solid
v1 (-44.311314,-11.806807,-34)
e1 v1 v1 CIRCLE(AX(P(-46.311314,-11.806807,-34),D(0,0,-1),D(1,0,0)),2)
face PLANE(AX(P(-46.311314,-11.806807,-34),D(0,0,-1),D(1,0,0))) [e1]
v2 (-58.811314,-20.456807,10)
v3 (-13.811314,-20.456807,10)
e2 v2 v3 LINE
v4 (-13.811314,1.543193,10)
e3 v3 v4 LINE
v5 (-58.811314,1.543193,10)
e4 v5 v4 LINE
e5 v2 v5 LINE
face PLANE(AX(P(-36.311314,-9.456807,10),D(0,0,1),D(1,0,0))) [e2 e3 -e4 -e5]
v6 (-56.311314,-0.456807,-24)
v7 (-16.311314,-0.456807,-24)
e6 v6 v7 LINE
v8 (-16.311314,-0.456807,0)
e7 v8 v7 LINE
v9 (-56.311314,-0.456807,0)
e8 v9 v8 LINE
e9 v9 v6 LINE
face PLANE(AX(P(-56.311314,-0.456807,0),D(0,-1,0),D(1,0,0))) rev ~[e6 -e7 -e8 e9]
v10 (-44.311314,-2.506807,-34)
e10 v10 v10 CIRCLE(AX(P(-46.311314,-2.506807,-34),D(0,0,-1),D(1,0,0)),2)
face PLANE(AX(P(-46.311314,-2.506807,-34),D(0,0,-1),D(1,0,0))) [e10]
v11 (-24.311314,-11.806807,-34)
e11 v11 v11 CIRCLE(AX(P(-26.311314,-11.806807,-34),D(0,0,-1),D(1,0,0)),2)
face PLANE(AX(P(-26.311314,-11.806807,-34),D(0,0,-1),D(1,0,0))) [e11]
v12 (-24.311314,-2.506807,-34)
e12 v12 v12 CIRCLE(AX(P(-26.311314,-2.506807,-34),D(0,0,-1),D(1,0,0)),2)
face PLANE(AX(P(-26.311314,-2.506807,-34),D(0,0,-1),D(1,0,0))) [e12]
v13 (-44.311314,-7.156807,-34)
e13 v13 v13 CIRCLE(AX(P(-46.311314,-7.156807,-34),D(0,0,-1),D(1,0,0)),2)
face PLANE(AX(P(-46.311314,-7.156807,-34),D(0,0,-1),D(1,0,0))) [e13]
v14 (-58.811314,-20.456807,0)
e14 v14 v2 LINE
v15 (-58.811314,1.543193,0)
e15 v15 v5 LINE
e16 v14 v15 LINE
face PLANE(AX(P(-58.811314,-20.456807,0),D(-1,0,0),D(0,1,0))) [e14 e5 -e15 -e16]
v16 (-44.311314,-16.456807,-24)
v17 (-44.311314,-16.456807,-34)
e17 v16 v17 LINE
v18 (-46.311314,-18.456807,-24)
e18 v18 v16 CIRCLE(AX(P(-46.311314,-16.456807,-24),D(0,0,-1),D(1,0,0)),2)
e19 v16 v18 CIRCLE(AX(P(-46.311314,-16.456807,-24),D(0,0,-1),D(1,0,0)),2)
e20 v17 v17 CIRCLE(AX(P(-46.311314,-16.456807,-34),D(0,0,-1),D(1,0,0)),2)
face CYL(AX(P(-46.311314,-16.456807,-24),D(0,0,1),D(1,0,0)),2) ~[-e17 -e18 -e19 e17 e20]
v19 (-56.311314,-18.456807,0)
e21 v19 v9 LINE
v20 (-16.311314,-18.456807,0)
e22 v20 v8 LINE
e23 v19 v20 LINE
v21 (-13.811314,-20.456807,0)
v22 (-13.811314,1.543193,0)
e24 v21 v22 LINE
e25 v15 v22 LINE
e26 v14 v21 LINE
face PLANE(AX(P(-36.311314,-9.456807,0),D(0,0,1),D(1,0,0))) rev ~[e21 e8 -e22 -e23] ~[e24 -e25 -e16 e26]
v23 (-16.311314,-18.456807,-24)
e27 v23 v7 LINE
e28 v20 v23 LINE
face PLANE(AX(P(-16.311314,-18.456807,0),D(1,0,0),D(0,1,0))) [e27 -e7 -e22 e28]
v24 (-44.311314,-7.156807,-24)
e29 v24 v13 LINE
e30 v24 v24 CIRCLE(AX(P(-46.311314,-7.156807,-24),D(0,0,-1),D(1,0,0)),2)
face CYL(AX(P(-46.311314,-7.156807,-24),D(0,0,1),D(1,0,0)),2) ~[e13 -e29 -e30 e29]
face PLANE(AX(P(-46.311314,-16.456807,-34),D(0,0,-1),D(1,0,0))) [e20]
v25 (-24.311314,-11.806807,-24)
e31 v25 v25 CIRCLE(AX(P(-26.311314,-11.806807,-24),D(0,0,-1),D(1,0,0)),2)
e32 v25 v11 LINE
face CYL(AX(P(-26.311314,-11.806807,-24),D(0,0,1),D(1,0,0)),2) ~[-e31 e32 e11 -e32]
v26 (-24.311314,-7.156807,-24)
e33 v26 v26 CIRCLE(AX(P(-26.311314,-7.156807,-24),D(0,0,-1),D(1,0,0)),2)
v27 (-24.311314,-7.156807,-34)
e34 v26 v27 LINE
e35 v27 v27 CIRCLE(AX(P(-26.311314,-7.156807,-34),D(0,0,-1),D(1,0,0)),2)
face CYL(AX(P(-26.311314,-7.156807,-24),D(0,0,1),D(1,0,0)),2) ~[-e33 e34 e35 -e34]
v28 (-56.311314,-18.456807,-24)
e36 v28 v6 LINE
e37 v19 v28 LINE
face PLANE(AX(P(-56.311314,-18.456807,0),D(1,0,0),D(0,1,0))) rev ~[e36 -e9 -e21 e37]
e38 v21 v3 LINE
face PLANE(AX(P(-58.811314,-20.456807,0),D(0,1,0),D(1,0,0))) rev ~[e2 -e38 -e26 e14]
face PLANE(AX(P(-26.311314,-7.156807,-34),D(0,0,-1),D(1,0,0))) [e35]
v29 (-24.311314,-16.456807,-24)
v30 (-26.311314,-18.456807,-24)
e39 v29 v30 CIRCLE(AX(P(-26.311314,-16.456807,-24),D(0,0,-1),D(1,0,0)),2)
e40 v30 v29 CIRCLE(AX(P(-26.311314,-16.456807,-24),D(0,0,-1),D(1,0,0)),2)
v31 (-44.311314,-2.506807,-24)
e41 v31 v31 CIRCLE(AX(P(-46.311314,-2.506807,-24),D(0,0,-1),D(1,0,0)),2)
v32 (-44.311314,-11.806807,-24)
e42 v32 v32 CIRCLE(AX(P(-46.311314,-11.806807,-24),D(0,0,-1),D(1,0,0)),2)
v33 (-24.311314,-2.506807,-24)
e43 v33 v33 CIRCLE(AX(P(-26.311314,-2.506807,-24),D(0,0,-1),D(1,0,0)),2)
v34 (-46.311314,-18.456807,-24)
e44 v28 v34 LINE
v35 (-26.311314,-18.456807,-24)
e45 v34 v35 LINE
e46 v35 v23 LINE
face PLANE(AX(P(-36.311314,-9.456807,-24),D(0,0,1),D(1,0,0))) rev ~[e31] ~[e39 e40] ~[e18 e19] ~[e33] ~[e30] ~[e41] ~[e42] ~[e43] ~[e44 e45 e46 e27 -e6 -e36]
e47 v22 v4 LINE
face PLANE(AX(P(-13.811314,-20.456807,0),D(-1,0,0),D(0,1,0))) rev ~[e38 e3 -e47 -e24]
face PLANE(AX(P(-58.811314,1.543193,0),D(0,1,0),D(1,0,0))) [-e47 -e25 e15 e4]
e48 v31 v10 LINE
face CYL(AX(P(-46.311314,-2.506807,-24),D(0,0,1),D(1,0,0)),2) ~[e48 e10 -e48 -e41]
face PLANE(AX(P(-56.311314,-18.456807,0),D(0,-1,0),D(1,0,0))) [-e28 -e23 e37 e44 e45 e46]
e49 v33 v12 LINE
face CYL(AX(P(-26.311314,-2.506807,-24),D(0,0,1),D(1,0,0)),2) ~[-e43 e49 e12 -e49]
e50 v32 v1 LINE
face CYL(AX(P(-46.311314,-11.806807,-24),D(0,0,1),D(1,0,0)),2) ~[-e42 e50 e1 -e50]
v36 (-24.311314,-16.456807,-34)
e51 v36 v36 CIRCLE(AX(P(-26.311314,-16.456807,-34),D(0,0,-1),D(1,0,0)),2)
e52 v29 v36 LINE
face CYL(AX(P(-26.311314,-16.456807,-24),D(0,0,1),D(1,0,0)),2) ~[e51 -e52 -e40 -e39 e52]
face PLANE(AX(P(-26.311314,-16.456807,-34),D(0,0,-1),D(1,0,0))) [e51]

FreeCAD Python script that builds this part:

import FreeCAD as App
import Part
import Sketcher
from FreeCAD import Vector


def add_polygon(sketch, points):
    """Adds a closed chain of lines whose ends are joined by coincident constraints."""
    first, n = sketch.GeometryCount, len(points)
    for a, b in zip(points, points[1:] + points[:1]):
        sketch.addGeometry(Part.LineSegment(App.Vector(*a, 0), App.Vector(*b, 0)), False)
    for i in range(n):
        sketch.addConstraint(Sketcher.Constraint("Coincident", first + i, 2, first + (i + 1) % n, 1))

doc = App.newDocument("Part")
body = doc.addObject("PartDesign::Body", "Body")

sketch1 = doc.addObject("Sketcher::SketchObject", "Sketch")
body.addObject(sketch1)
sketch1.AttachmentSupport = (doc.XY_Plane, [""])
sketch1.MapMode = "FlatFace"
add_polygon(sketch1, [(-59, 2), (-59, -20), (-14, -20), (-14, 2)])
sketch1.addConstraint(Sketcher.Constraint("Vertical", 0))
sketch1.addConstraint(Sketcher.Constraint("Horizontal", 1))
sketch1.addConstraint(Sketcher.Constraint("Vertical", 2))
sketch1.addConstraint(Sketcher.Constraint("Horizontal", 3))
sketch1.addConstraint(Sketcher.Constraint("DistanceX", 1, 1, 1, 2, 45.0))
sketch1.addConstraint(Sketcher.Constraint("DistanceY", 0, 2, 0, 1, 22.0))
sketch1.addConstraint(Sketcher.Constraint("DistanceX", 0, 2, -1, 1, 58.811314))
sketch1.addConstraint(Sketcher.Constraint("DistanceY", 0, 2, -1, 1, 20.456807))
pad1 = doc.addObject("PartDesign::Pad", "Pad")
body.addObject(pad1)
pad1.Profile = sketch1
pad1.Length = 10

sketch2 = doc.addObject("Sketcher::SketchObject", "Sketch001")
body.addObject(sketch2)
sketch2.AttachmentSupport = (doc.XY_Plane, [""])
sketch2.MapMode = "FlatFace"
add_polygon(sketch2, [(-56, 0), (-56, -18), (-16, -18), (-16, 0)])
sketch2.addConstraint(Sketcher.Constraint("Vertical", 0))
sketch2.addConstraint(Sketcher.Constraint("Horizontal", 1))
sketch2.addConstraint(Sketcher.Constraint("Vertical", 2))
sketch2.addConstraint(Sketcher.Constraint("Horizontal", 3))
sketch2.addConstraint(Sketcher.Constraint("DistanceX", 1, 1, 1, 2, 40.0))
sketch2.addConstraint(Sketcher.Constraint("DistanceY", 0, 2, 0, 1, 18.0))
sketch2.addConstraint(Sketcher.Constraint("DistanceX", 0, 2, -1, 1, 56.311314))
sketch2.addConstraint(Sketcher.Constraint("DistanceY", 0, 2, -1, 1, 18.456807))
pad2 = doc.addObject("PartDesign::Pad", "Pad001")
body.addObject(pad2)
pad2.Profile = sketch2
pad2.Length = 24
pad2.Reversed = True

sketch3 = doc.addObject("Sketcher::SketchObject", "Sketch002")
body.addObject(sketch3)
sketch3.AttachmentSupport = (doc.XY_Plane, [""])
sketch3.MapMode = "FlatFace"
sketch3.AttachmentOffset = App.Placement(Vector(0, 0, -24), App.Rotation())
sketch3.addGeometry(Part.Circle(Vector(-46.3, -16.5, 0), Vector(0, 0, 1), 2), False)
sketch3.addGeometry(Part.Circle(Vector(-46.3, -11.8, 0), Vector(0, 0, 1), 2), False)
sketch3.addGeometry(Part.Circle(Vector(-46.3, -7.2, 0), Vector(0, 0, 1), 2), False)
sketch3.addGeometry(Part.Circle(Vector(-46.3, -2.5, 0), Vector(0, 0, 1), 2), False)
sketch3.addGeometry(Part.Circle(Vector(-26.3, -16.5, 0), Vector(0, 0, 1), 2), False)
sketch3.addGeometry(Part.Circle(Vector(-26.3, -11.8, 0), Vector(0, 0, 1), 2), False)
sketch3.addGeometry(Part.Circle(Vector(-26.3, -7.2, 0), Vector(0, 0, 1), 2), False)
sketch3.addGeometry(Part.Circle(Vector(-26.3, -2.5, 0), Vector(0, 0, 1), 2), False)
sketch3.addConstraint(Sketcher.Constraint("Equal", 0, 1))
sketch3.addConstraint(Sketcher.Constraint("Equal", 1, 2))
sketch3.addConstraint(Sketcher.Constraint("Equal", 2, 3))
sketch3.addConstraint(Sketcher.Constraint("Equal", 3, 4))
sketch3.addConstraint(Sketcher.Constraint("Equal", 4, 5))
sketch3.addConstraint(Sketcher.Constraint("Equal", 5, 6))
sketch3.addConstraint(Sketcher.Constraint("Equal", 6, 7))
sketch3.addConstraint(Sketcher.Constraint("Horizontal", 0, 3, 4, 3))
sketch3.addConstraint(Sketcher.Constraint("Horizontal", 1, 3, 5, 3))
sketch3.addConstraint(Sketcher.Constraint("Horizontal", 2, 3, 6, 3))
sketch3.addConstraint(Sketcher.Constraint("Horizontal", 3, 3, 7, 3))
sketch3.addConstraint(Sketcher.Constraint("Vertical", 0, 3, 1, 3))
sketch3.addConstraint(Sketcher.Constraint("Vertical", 1, 3, 2, 3))
sketch3.addConstraint(Sketcher.Constraint("Vertical", 2, 3, 3, 3))
sketch3.addConstraint(Sketcher.Constraint("Vertical", 4, 3, 5, 3))
sketch3.addConstraint(Sketcher.Constraint("Vertical", 5, 3, 6, 3))
sketch3.addConstraint(Sketcher.Constraint("Vertical", 6, 3, 7, 3))
sketch3.addConstraint(Sketcher.Constraint("Diameter", 0, 4.0))
sketch3.addConstraint(Sketcher.Constraint("DistanceX", 0, 3, 4, 3, 20.0))
sketch3.addConstraint(Sketcher.Constraint("DistanceY", 0, 3, 2, 3, 9.3))
sketch3.addConstraint(Sketcher.Constraint("DistanceY", 1, 3, 3, 3, 9.3))
sketch3.addConstraint(Sketcher.Constraint("DistanceY", 0, 3, 1, 3, 4.65))
sketch3.addConstraint(Sketcher.Constraint("DistanceX", 0, 3, -1, 1, 46.311314))
sketch3.addConstraint(Sketcher.Constraint("DistanceY", 0, 3, -1, 1, 16.456807))
pad3 = doc.addObject("PartDesign::Pad", "Pad002")
body.addObject(pad3)
pad3.Profile = sketch3
pad3.Length = 10
pad3.Reversed = True

doc.recompute()
